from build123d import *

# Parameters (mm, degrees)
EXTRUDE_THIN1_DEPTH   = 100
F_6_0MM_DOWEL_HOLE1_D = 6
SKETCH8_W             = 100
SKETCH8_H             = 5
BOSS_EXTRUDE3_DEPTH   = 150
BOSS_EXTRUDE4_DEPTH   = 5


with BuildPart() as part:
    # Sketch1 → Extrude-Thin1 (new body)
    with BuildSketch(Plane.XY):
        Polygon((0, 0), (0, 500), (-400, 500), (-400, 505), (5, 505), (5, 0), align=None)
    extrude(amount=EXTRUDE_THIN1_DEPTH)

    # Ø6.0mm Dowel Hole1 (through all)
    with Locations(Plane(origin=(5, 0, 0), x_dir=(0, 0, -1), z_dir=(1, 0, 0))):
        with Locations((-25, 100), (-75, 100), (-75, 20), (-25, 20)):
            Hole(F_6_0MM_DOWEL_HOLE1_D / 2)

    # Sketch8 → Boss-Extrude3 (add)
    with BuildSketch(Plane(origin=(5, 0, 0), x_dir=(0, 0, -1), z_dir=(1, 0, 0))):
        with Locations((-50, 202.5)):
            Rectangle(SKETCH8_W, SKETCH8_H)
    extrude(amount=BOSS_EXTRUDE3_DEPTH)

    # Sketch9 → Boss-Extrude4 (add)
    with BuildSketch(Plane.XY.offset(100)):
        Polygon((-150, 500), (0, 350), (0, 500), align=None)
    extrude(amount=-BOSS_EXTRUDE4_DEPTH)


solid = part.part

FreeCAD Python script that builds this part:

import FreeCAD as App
import Part
import Sketcher

V = App.Vector
Q = App.Units.Quantity


def add_polygon(sketch, points):
    """Adds a closed chain of lines whose ends are joined by coincident constraints."""
    first, n = sketch.GeometryCount, len(points)
    for a, b in zip(points, points[1:] + points[:1]):
        sketch.addGeometry(Part.LineSegment(App.Vector(*a, 0), App.Vector(*b, 0)), False)
    for i in range(n):
        sketch.addConstraint(Sketcher.Constraint("Coincident", first + i, 2, first + (i + 1) % n, 1))

doc = App.newDocument("Part")
body = doc.addObject("PartDesign::Body", "Body")

sketch1 = body.newObject("Sketcher::SketchObject", "Sketch")
sketch1.AttachmentSupport = (doc.getObject("XY_Plane"), [""])
sketch1.MapMode = "FlatFace"
add_polygon(sketch1, [(0, 500), (0, 0), (5, 0), (5, 505), (-400, 505), (-400, 500)])
sketch1.addConstraint([
    Sketcher.Constraint("Vertical", 0),
    Sketcher.Constraint("Horizontal", 1),
    Sketcher.Constraint("Vertical", 2),
    Sketcher.Constraint("Horizontal", 3),
    Sketcher.Constraint("Vertical", 4),
    Sketcher.Constraint("Horizontal", 5),
    Sketcher.Constraint("Coincident", 0, 2, -1, 1),
    Sketcher.Constraint("Equal", 1, 4),
    Sketcher.Constraint("DistanceX", 1, 1, 1, 2, Q("5 mm")),
    Sketcher.Constraint("DistanceX", 3, 2, 3, 1, Q("405 mm")),
    Sketcher.Constraint("DistanceY", 0, 2, 0, 1, Q("500 mm")),
])
pad1 = body.newObject("PartDesign::Pad", "Pad")
pad1.Profile = sketch1
pad1.Length = 100

sketch2 = body.newObject("Sketcher::SketchObject", "Sketch001")
sketch2.AttachmentSupport = (doc.getObject("YZ_Plane"), [""])
sketch2.MapMode = "FlatFace"
sketch2.AttachmentOffset = App.Placement(V(0, 0, 5), App.Rotation())
sketch2.addGeometry([
    Part.Circle(V(100, 25, 0), V(0, 0, 1), 3),
    Part.Circle(V(100, 75, 0), V(0, 0, 1), 3),
    Part.Circle(V(20, 75, 0), V(0, 0, 1), 3),
    Part.Circle(V(20, 25, 0), V(0, 0, 1), 3),
], False)
sketch2.addConstraint([
    Sketcher.Constraint("Equal", 0, 1),
    Sketcher.Constraint("Equal", 1, 2),
    Sketcher.Constraint("Equal", 2, 3),
    Sketcher.Constraint("Horizontal", 1, 3, 2, 3),
    Sketcher.Constraint("Horizontal", 0, 3, 3, 3),
    Sketcher.Constraint("Vertical", 0, 3, 1, 3),
    Sketcher.Constraint("Vertical", 2, 3, 3, 3),
    Sketcher.Constraint("Diameter", 0, Q("6 mm")),
    Sketcher.Constraint("DistanceX", -1, 1, 0, 3, Q("100 mm")),
    Sketcher.Constraint("DistanceY", -1, 1, 0, 3, Q("25 mm")),
    Sketcher.Constraint("DistanceY", -1, 1, 1, 3, Q("75 mm")),
    Sketcher.Constraint("DistanceX", -1, 1, 2, 3, Q("20 mm")),
])
doc.recompute()
hole = body.newObject("PartDesign::Hole", "Hole")
hole.Profile = sketch2
hole.ThreadType = "None"
hole.Diameter = 6
hole.DepthType = "ThroughAll"

sketch3 = body.newObject("Sketcher::SketchObject", "Sketch002")
sketch3.AttachmentSupport = (doc.getObject("YZ_Plane"), [""])
sketch3.MapMode = "FlatFace"
sketch3.AttachmentOffset = App.Placement(V(0, 0, 5), App.Rotation())
add_polygon(sketch3, [(205, 100), (200, 100), (200, 0), (205, 0)])
sketch3.addConstraint([
    Sketcher.Constraint("Horizontal", 0),
    Sketcher.Constraint("Vertical", 1),
    Sketcher.Constraint("Horizontal", 2),
    Sketcher.Constraint("Vertical", 3),
    Sketcher.Constraint("PointOnObject", 1, 2, -1),
    Sketcher.Constraint("DistanceX", 0, 2, 0, 1, Q("5 mm")),
    Sketcher.Constraint("DistanceY", 1, 2, 1, 1, Q("100 mm")),
    Sketcher.Constraint("DistanceX", -1, 1, 0, 2, Q("200 mm")),
])
pad2 = body.newObject("PartDesign::Pad", "Pad001")
pad2.Profile = sketch3
pad2.Length = 150

sketch4 = body.newObject("Sketcher::SketchObject", "Sketch003")
sketch4.AttachmentSupport = (doc.getObject("XY_Plane"), [""])
sketch4.MapMode = "FlatFace"
sketch4.AttachmentOffset = App.Placement(V(0, 0, 100), App.Rotation())
add_polygon(sketch4, [(-150, 500), (0, 350), (0, 500)])
sketch4.addConstraint([
    Sketcher.Constraint("Vertical", 1),
    Sketcher.Constraint("Horizontal", 2),
    Sketcher.Constraint("PointOnObject", 0, 2, -2),
    Sketcher.Constraint("Equal", 2, 1),
    Sketcher.Constraint("DistanceX", 2, 2, 2, 1, Q("150 mm")),
    Sketcher.Constraint("DistanceY", -1, 1, 0, 2, Q("350 mm")),
])
pad3 = body.newObject("PartDesign::Pad", "Pad002")
pad3.Profile = sketch4
pad3.Length = 5
pad3.Reversed = True

doc.recompute()
